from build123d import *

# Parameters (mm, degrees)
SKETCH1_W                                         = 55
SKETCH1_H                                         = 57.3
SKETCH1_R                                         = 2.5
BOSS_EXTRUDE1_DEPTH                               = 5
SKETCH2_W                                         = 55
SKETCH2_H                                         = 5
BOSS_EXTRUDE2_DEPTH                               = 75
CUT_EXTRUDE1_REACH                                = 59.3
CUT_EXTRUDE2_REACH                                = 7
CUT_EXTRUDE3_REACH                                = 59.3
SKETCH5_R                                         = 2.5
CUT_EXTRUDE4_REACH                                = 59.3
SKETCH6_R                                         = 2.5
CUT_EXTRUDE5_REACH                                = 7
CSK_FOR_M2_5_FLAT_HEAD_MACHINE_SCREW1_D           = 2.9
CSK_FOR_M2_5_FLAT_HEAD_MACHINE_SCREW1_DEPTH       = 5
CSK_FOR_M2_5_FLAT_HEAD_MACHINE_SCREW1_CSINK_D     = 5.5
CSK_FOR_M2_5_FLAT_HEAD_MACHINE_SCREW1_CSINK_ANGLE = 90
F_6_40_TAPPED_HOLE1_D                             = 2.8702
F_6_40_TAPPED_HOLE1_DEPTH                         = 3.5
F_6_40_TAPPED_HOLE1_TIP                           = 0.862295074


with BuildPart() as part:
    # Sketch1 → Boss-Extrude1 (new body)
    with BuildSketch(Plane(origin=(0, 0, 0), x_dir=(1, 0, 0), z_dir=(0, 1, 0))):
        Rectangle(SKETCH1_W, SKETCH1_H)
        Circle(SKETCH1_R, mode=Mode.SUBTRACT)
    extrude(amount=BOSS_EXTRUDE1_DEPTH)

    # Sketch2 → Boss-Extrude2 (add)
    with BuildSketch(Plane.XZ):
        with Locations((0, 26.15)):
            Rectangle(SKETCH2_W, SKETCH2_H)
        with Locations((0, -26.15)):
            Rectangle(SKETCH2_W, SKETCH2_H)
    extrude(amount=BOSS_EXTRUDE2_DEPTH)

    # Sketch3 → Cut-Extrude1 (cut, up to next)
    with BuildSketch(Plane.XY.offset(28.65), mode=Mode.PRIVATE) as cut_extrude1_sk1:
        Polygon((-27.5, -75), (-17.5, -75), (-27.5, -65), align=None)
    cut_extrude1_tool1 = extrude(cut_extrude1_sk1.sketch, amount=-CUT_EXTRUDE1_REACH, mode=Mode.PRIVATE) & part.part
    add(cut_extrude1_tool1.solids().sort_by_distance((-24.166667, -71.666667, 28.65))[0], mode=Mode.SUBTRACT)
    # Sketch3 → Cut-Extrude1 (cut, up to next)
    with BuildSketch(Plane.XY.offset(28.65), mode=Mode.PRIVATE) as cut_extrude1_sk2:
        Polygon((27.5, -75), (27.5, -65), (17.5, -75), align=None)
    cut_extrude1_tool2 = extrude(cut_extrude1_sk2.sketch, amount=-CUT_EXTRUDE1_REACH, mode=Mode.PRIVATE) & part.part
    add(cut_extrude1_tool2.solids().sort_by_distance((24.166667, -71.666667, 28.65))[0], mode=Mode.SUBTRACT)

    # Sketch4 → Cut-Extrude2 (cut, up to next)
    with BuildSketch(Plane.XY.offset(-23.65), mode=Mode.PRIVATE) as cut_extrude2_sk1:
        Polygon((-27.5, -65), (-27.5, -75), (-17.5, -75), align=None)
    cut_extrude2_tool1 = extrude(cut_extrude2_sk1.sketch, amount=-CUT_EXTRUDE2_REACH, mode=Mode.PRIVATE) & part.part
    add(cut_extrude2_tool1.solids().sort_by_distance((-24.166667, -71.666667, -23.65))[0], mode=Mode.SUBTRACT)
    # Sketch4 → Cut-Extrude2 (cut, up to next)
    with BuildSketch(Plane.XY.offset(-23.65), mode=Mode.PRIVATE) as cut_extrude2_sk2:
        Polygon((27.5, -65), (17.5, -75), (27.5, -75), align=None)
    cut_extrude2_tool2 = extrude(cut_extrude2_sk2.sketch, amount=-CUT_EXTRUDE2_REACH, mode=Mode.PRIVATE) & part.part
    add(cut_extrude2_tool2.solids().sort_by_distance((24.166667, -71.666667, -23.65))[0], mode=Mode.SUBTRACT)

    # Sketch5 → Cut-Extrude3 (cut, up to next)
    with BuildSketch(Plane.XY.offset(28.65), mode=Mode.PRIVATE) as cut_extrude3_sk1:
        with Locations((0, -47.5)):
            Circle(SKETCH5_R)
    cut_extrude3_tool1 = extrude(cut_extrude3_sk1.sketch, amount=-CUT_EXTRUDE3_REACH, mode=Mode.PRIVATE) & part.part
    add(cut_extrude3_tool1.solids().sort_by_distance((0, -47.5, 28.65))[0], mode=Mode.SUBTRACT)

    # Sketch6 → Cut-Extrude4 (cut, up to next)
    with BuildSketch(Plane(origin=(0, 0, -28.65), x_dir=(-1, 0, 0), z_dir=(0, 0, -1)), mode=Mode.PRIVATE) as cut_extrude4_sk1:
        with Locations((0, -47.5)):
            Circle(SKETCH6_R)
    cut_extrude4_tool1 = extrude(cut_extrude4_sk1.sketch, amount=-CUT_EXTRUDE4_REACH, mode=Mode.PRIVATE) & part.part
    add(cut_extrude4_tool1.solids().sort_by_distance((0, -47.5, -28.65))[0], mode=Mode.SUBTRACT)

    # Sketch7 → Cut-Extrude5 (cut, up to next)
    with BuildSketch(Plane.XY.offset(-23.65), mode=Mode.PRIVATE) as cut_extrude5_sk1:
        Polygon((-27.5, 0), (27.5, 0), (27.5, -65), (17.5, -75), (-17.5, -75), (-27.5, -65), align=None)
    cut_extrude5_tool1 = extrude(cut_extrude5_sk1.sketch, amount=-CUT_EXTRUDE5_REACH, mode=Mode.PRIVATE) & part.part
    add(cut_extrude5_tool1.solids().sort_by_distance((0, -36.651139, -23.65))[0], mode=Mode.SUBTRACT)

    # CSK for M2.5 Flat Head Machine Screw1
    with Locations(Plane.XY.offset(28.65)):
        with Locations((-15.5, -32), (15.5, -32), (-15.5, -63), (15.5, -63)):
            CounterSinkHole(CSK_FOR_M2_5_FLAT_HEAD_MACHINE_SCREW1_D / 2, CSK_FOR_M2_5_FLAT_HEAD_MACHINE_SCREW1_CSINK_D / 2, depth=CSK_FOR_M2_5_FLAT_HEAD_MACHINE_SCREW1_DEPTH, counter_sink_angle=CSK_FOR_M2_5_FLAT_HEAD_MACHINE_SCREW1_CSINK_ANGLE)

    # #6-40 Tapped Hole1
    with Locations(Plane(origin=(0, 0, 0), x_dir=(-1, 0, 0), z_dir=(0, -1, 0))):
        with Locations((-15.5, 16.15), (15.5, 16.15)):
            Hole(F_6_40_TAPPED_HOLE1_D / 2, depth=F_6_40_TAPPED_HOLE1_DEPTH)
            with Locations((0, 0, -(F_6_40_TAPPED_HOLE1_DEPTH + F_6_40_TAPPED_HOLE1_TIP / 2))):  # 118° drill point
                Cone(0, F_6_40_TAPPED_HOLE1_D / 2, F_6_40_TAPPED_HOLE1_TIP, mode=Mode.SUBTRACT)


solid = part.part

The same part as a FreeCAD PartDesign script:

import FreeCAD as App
import Part
import Sketcher
from FreeCAD import Vector


def add_polygon(sketch, points):
    """Adds a closed chain of lines whose ends are joined by coincident constraints."""
    first, n = sketch.GeometryCount, len(points)
    for a, b in zip(points, points[1:] + points[:1]):
        sketch.addGeometry(Part.LineSegment(App.Vector(*a, 0), App.Vector(*b, 0)), False)
    for i in range(n):
        sketch.addConstraint(Sketcher.Constraint("Coincident", first + i, 2, first + (i + 1) % n, 1))

doc = App.newDocument("Part")
body = doc.addObject("PartDesign::Body", "Body")

sketch1 = doc.addObject("Sketcher::SketchObject", "Sketch")
body.addObject(sketch1)
sketch1.AttachmentSupport = (doc.XZ_Plane, [""])
sketch1.MapMode = "FlatFace"
add_polygon(sketch1, [(-27.5, -28.65), (-27.5, 28.65), (27.5, 28.65), (27.5, -28.65)])
sketch1.addGeometry(Part.Circle(Vector(0, 0, 0), Vector(0, 0, 1), 2.5), False)
sketch1.addConstraint(Sketcher.Constraint("Vertical", 0))
sketch1.addConstraint(Sketcher.Constraint("Horizontal", 1))
sketch1.addConstraint(Sketcher.Constraint("Vertical", 2))
sketch1.addConstraint(Sketcher.Constraint("Horizontal", 3))
sketch1.addConstraint(Sketcher.Constraint("Coincident", 4, 3, -1, 1))
sketch1.addConstraint(Sketcher.Constraint("Symmetric", 0, 2, 2, 2, -1, 1))
sketch1.addConstraint(Sketcher.Constraint("Diameter", 4, 5.0))
sketch1.addConstraint(Sketcher.Constraint("DistanceX", 1, 1, 1, 2, 55.0))
sketch1.addConstraint(Sketcher.Constraint("DistanceY", 0, 1, 0, 2, 57.3))
pad1 = doc.addObject("PartDesign::Pad", "Pad")
body.addObject(pad1)
pad1.Profile = sketch1
pad1.Length = 5
pad1.Reversed = True

sketch2 = doc.addObject("Sketcher::SketchObject", "Sketch001")
body.addObject(sketch2)
sketch2.AttachmentSupport = (doc.XZ_Plane, [""])
sketch2.MapMode = "FlatFace"
add_polygon(sketch2, [(-27.5, 28.65), (-27.5, 23.65), (27.5, 23.65), (27.5, 28.65)])
add_polygon(sketch2, [(-27.5, -23.65), (-27.5, -28.65), (27.5, -28.65), (27.5, -23.65)])
sketch2.addConstraint(Sketcher.Constraint("Vertical", 0))
sketch2.addConstraint(Sketcher.Constraint("Horizontal", 1))
sketch2.addConstraint(Sketcher.Constraint("Vertical", 2))
sketch2.addConstraint(Sketcher.Constraint("Horizontal", 3))
sketch2.addConstraint(Sketcher.Constraint("Vertical", 4))
sketch2.addConstraint(Sketcher.Constraint("Horizontal", 5))
sketch2.addConstraint(Sketcher.Constraint("Vertical", 6))
sketch2.addConstraint(Sketcher.Constraint("Horizontal", 7))
sketch2.addConstraint(Sketcher.Constraint("Symmetric", 2, 2, 4, 2, -1, 1))
sketch2.addConstraint(Sketcher.Constraint("Symmetric", 0, 2, 6, 2, -1, 1))
sketch2.addConstraint(Sketcher.Constraint("Vertical", 3, 2, 4, 2))
sketch2.addConstraint(Sketcher.Constraint("DistanceX", 1, 1, 1, 2, 55.0))
sketch2.addConstraint(Sketcher.Constraint("DistanceY", 0, 2, 0, 1, 5.0))
sketch2.addConstraint(Sketcher.Constraint("DistanceY", 4, 2, 0, 2, 52.3))
pad2 = doc.addObject("PartDesign::Pad", "Pad001")
body.addObject(pad2)
pad2.Profile = sketch2
pad2.Length = 75

sketch3 = doc.addObject("Sketcher::SketchObject", "Sketch002")
body.addObject(sketch3)
sketch3.AttachmentSupport = (doc.XY_Plane, [""])
sketch3.MapMode = "FlatFace"
sketch3.AttachmentOffset = App.Placement(Vector(0, 0, 28.65), App.Rotation())
add_polygon(sketch3, [(-27.5, -75), (-17.5, -75), (-27.5, -65)])
sketch3.addConstraint(Sketcher.Constraint("Horizontal", 0))
sketch3.addConstraint(Sketcher.Constraint("Vertical", 2))
sketch3.addConstraint(Sketcher.Constraint("Equal", 0, 2))
sketch3.addConstraint(Sketcher.Constraint("DistanceX", 0, 1, 0, 2, 10.0))
sketch3.addConstraint(Sketcher.Constraint("DistanceY", 0, 2, -1, 1, 75.0))
sketch3.addConstraint(Sketcher.Constraint("DistanceX", 0, 2, -1, 1, 17.5))
pocket1 = doc.addObject("PartDesign::Pocket", "Pocket")
body.addObject(pocket1)
pocket1.Profile = sketch3
pocket1.Type = "UpToFirst"

sketch4 = doc.addObject("Sketcher::SketchObject", "Sketch003")
body.addObject(sketch4)
sketch4.AttachmentSupport = (doc.XY_Plane, [""])
sketch4.MapMode = "FlatFace"
sketch4.AttachmentOffset = App.Placement(Vector(0, 0, 28.65), App.Rotation())
add_polygon(sketch4, [(27.5, -75), (27.5, -65), (17.5, -75)])
sketch4.addConstraint(Sketcher.Constraint("Vertical", 0))
sketch4.addConstraint(Sketcher.Constraint("Horizontal", 2))
sketch4.addConstraint(Sketcher.Constraint("Equal", 2, 0))
sketch4.addConstraint(Sketcher.Constraint("DistanceX", 2, 1, 2, 2, 10.0))
sketch4.addConstraint(Sketcher.Constraint("DistanceY", 0, 2, -1, 1, 65.0))
sketch4.addConstraint(Sketcher.Constraint("DistanceX", -1, 1, 0, 2, 27.5))
pocket2 = doc.addObject("PartDesign::Pocket", "Pocket001")
body.addObject(pocket2)
pocket2.Profile = sketch4
pocket2.Type = "UpToFirst"

sketch5 = doc.addObject("Sketcher::SketchObject", "Sketch004")
body.addObject(sketch5)
sketch5.AttachmentSupport = (doc.XY_Plane, [""])
sketch5.MapMode = "FlatFace"
sketch5.AttachmentOffset = App.Placement(Vector(0, 0, -23.65), App.Rotation())
add_polygon(sketch5, [(-27.5, -65), (-27.5, -75), (-17.5, -75)])
sketch5.addConstraint(Sketcher.Constraint("Vertical", 0))
sketch5.addConstraint(Sketcher.Constraint("Horizontal", 1))
sketch5.addConstraint(Sketcher.Constraint("Equal", 1, 0))
sketch5.addConstraint(Sketcher.Constraint("DistanceX", 1, 1, 1, 2, 10.0))
sketch5.addConstraint(Sketcher.Constraint("DistanceY", 0, 2, -1, 1, 75.0))
sketch5.addConstraint(Sketcher.Constraint("DistanceX", 0, 2, -1, 1, 27.5))
pocket3 = doc.addObject("PartDesign::Pocket", "Pocket002")
body.addObject(pocket3)
pocket3.Profile = sketch5
pocket3.Type = "UpToFirst"

sketch6 = doc.addObject("Sketcher::SketchObject", "Sketch005")
body.addObject(sketch6)
sketch6.AttachmentSupport = (doc.XY_Plane, [""])
sketch6.MapMode = "FlatFace"
sketch6.AttachmentOffset = App.Placement(Vector(0, 0, -23.65), App.Rotation())
add_polygon(sketch6, [(27.5, -65), (17.5, -75), (27.5, -75)])
sketch6.addConstraint(Sketcher.Constraint("Horizontal", 1))
sketch6.addConstraint(Sketcher.Constraint("Vertical", 2))
sketch6.addConstraint(Sketcher.Constraint("Equal", 1, 2))
sketch6.addConstraint(Sketcher.Constraint("DistanceX", 1, 1, 1, 2, 10.0))
sketch6.addConstraint(Sketcher.Constraint("DistanceY", 0, 2, -1, 1, 75.0))
sketch6.addConstraint(Sketcher.Constraint("DistanceX", -1, 1, 0, 2, 17.5))
pocket4 = doc.addObject("PartDesign::Pocket", "Pocket003")
body.addObject(pocket4)
pocket4.Profile = sketch6
pocket4.Type = "UpToFirst"

sketch7 = doc.addObject("Sketcher::SketchObject", "Sketch006")
body.addObject(sketch7)
sketch7.AttachmentSupport = (doc.XY_Plane, [""])
sketch7.MapMode = "FlatFace"
sketch7.AttachmentOffset = App.Placement(Vector(0, 0, 28.65), App.Rotation())
sketch7.addGeometry(Part.Circle(Vector(0, -47.5, 0), Vector(0, 0, 1), 2.5), False)
sketch7.addConstraint(Sketcher.Constraint("PointOnObject", 0, 3, -2))
sketch7.addConstraint(Sketcher.Constraint("Diameter", 0, 5.0))
sketch7.addConstraint(Sketcher.Constraint("DistanceY", 0, 3, -1, 1, 47.5))
pocket5 = doc.addObject("PartDesign::Pocket", "Pocket004")
body.addObject(pocket5)
pocket5.Profile = sketch7
pocket5.Type = "UpToFirst"

sketch8 = doc.addObject("Sketcher::SketchObject", "Sketch007")
body.addObject(sketch8)
sketch8.AttachmentSupport = (doc.XY_Plane, [""])
sketch8.MapMode = "FlatFace"
sketch8.AttachmentOffset = App.Placement(Vector(0, 0, -28.65), App.Rotation())
sketch8.addGeometry(Part.Circle(Vector(0, -47.5, 0), Vector(0, 0, 1), 2.5), False)
sketch8.addConstraint(Sketcher.Constraint("PointOnObject", 0, 3, -2))
sketch8.addConstraint(Sketcher.Constraint("Diameter", 0, 5.0))
sketch8.addConstraint(Sketcher.Constraint("DistanceY", 0, 3, -1, 1, 47.5))
pocket6 = doc.addObject("PartDesign::Pocket", "Pocket005")
body.addObject(pocket6)
pocket6.Profile = sketch8
pocket6.Type = "UpToFirst"
pocket6.Reversed = True

sketch9 = doc.addObject("Sketcher::SketchObject", "Sketch008")
body.addObject(sketch9)
sketch9.AttachmentSupport = (doc.XY_Plane, [""])
sketch9.MapMode = "FlatFace"
sketch9.AttachmentOffset = App.Placement(Vector(0, 0, -23.65), App.Rotation())
add_polygon(sketch9, [(27.5, 0), (-27.5, 0), (-27.5, -65), (-17.5, -75), (17.5, -75), (27.5, -65)])
sketch9.addConstraint(Sketcher.Constraint("Horizontal", 0))
sketch9.addConstraint(Sketcher.Constraint("Vertical", 1))
sketch9.addConstraint(Sketcher.Constraint("Horizontal", 3))
sketch9.addConstraint(Sketcher.Constraint("Vertical", 5))
sketch9.addConstraint(Sketcher.Constraint("Symmetric", 0, 2, 5, 2, -1, 1))
sketch9.addConstraint(Sketcher.Constraint("Perpendicular", 2, 4))
sketch9.addConstraint(Sketcher.Constraint("Horizontal", 1, 2, 4, 2))
sketch9.addConstraint(Sketcher.Constraint("Equal", 2, 4))
sketch9.addConstraint(Sketcher.Constraint("DistanceX", 0, 2, 0, 1, 55.0))
sketch9.addConstraint(Sketcher.Constraint("DistanceX", 3, 1, 3, 2, 35.0))
sketch9.addConstraint(Sketcher.Constraint("DistanceY", 1, 2, 1, 1, 65.0))
pocket7 = doc.addObject("PartDesign::Pocket", "Pocket006")
body.addObject(pocket7)
pocket7.Profile = sketch9
pocket7.Type = "UpToFirst"

sketch10 = doc.addObject("Sketcher::SketchObject", "Sketch009")
body.addObject(sketch10)
sketch10.AttachmentSupport = (doc.XY_Plane, [""])
sketch10.MapMode = "FlatFace"
sketch10.AttachmentOffset = App.Placement(Vector(0, 0, 28.65), App.Rotation())
sketch10.addGeometry(Part.Circle(Vector(-15.5, -32, 0), Vector(0, 0, 1), 1.45), False)
sketch10.addGeometry(Part.Circle(Vector(15.5, -32, 0), Vector(0, 0, 1), 1.45), False)
sketch10.addGeometry(Part.Circle(Vector(-15.5, -63, 0), Vector(0, 0, 1), 1.45), False)
sketch10.addGeometry(Part.Circle(Vector(15.5, -63, 0), Vector(0, 0, 1), 1.45), False)
sketch10.addConstraint(Sketcher.Constraint("Equal", 0, 1))
sketch10.addConstraint(Sketcher.Constraint("Equal", 1, 2))
sketch10.addConstraint(Sketcher.Constraint("Equal", 2, 3))
sketch10.addConstraint(Sketcher.Constraint("Symmetric", 0, 3, 1, 3, -2))
sketch10.addConstraint(Sketcher.Constraint("Symmetric", 2, 3, 3, 3, -2))
sketch10.addConstraint(Sketcher.Constraint("Vertical", 0, 3, 2, 3))
sketch10.addConstraint(Sketcher.Constraint("Diameter", 0, 2.9))
sketch10.addConstraint(Sketcher.Constraint("DistanceY", 0, 3, -1, 1, 32.0))
sketch10.addConstraint(Sketcher.Constraint("DistanceY", 2, 3, -1, 1, 63.0))
sketch10.addConstraint(Sketcher.Constraint("DistanceX", 0, 3, 1, 3, 31.0))
doc.recompute()
hole = doc.addObject("PartDesign::Hole", "Hole")
body.addObject(hole)
hole.Profile = sketch10
hole.ThreadType = "None"
hole.Diameter = 2.9
hole.DepthType = "Dimension"
hole.Depth = 5
hole.DrillPoint = "Flat"
hole.HoleCutType = "Countersink"
hole.HoleCutDiameter = 5.5
hole.HoleCutCountersinkAngle = 90

sketch11 = doc.addObject("Sketcher::SketchObject", "Sketch010")
body.addObject(sketch11)
sketch11.AttachmentSupport = (doc.XZ_Plane, [""])
sketch11.MapMode = "FlatFace"
sketch11.addGeometry(Part.Circle(Vector(15.5, -16.15, 0), Vector(0, 0, 1), 1.4351), False)
sketch11.addGeometry(Part.Circle(Vector(-15.5, -16.15, 0), Vector(0, 0, 1), 1.4351), False)
sketch11.addConstraint(Sketcher.Constraint("Equal", 0, 1))
sketch11.addConstraint(Sketcher.Constraint("Symmetric", 0, 3, 1, 3, -2))
sketch11.addConstraint(Sketcher.Constraint("DistanceX", 1, 3, 0, 3, 31.0))
sketch11.addConstraint(Sketcher.Constraint("Diameter", 0, 2.8702))
sketch11.addConstraint(Sketcher.Constraint("DistanceY", 0, 3, -1, 1, 16.15))
doc.recompute()
hole2 = doc.addObject("PartDesign::Hole", "Hole001")
body.addObject(hole2)
hole2.Profile = sketch11
hole2.ThreadType = "None"
hole2.Diameter = 2.8702
hole2.DepthType = "Dimension"
hole2.Depth = 3.5
hole2.DrillPoint = "Angled"
hole2.DrillPointAngle = 118

doc.recompute()
